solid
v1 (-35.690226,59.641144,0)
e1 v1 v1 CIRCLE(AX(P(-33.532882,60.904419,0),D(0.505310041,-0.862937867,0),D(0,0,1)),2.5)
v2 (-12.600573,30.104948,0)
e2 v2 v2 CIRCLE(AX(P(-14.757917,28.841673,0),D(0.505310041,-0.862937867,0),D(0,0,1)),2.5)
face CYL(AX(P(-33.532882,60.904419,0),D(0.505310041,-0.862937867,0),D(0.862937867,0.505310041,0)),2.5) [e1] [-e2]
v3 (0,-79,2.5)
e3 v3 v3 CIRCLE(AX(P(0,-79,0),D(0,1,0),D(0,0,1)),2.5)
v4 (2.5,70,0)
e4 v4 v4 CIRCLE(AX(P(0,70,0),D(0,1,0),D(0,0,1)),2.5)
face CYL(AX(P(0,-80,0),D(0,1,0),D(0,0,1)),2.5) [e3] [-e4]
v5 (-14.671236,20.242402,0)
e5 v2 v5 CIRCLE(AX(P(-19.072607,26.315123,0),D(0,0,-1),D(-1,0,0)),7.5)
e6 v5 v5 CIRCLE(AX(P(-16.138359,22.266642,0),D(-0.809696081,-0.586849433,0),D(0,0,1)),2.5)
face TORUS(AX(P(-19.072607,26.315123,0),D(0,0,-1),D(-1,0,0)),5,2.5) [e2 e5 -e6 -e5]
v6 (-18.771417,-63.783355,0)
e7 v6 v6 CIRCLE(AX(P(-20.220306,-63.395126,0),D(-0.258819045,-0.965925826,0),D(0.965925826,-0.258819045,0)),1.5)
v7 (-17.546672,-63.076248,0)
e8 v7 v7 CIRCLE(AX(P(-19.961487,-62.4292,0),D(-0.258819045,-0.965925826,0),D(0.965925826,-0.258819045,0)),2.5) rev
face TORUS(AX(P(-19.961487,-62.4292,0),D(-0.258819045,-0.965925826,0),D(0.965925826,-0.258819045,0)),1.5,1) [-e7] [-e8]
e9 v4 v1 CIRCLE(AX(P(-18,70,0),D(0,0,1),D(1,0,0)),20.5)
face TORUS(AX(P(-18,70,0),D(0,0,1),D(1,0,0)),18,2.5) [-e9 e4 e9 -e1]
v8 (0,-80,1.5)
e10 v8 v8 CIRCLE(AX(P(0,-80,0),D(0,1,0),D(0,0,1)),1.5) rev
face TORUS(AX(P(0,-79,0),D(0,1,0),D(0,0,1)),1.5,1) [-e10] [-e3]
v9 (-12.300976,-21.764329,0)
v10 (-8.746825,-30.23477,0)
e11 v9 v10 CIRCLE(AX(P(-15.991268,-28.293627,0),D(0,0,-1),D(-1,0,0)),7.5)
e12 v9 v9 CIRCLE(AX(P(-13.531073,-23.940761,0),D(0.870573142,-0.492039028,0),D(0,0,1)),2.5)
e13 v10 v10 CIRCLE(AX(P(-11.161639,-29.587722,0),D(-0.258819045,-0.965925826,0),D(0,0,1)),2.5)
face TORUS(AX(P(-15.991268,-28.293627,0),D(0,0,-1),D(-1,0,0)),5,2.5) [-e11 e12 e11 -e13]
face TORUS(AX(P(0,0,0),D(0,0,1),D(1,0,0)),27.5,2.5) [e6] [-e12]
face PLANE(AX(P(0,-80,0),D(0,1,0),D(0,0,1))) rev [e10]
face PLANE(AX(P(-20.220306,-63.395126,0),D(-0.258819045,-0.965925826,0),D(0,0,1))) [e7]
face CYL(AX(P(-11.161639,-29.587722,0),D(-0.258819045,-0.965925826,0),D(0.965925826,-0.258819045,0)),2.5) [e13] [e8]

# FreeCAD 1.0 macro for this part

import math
import FreeCAD as App
import Part
import Sketcher
Q = App.Units.Quantity


def edges_at(feature, points):
    """Names of the edges that pass closest to the given points."""
    edges = feature.Shape.Edges
    near = lambda p: min(range(len(edges)), key=lambda i: edges[i].distToShape(Part.Vertex(*p))[0])
    return sorted({f"Edge{near(p) + 1}" for p in points})

doc = App.newDocument("Part")
body = doc.addObject("PartDesign::Body", "Body")

# Sketch on XZ plane
sketch1 = body.newObject("Sketcher::SketchObject", "Sketch")
sketch1.AttachmentSupport = (doc.getObject("XZ_Plane"), [""])
sketch1.MapMode = "FlatFace"
sketch1.AttachmentOffset = App.Placement(App.Vector(0, 0, 80), App.Rotation())
sketch1.addGeometry(Part.Circle(App.Vector(0, 0, 0), App.Vector(0, 0, 1), 2.5), False)
sketch1.addConstraint(Sketcher.Constraint("Coincident", 0, 3, -1, 1))
sketch1.addConstraint(Sketcher.Constraint("Diameter", 0, 5.0))

# Sketch on XY plane
sketch2 = body.newObject("Sketcher::SketchObject", "Sketch001")
sketch2.AttachmentSupport = (doc.getObject("XY_Plane"), [""])
sketch2.MapMode = "FlatFace"
sketch2.addGeometry(Part.LineSegment(App.Vector(0, -80, 0), App.Vector(0, 70, 0)), False)
sketch2.addGeometry(Part.ArcOfCircle(Part.Circle(App.Vector(-18, 70, 0), App.Vector(0, 0, 1), 18), math.radians(0), math.radians(210.351936)), False)
sketch2.addGeometry(Part.LineSegment(App.Vector(-33.532882, 60.904419, 0), App.Vector(-14.757917, 28.841673, 0)), False)
sketch2.addGeometry(Part.ArcOfCircle(Part.Circle(App.Vector(-19.072607, 26.315123, 0), App.Vector(0, 0, 1), 5), math.radians(-54.066248), math.radians(30.351936)), False)
sketch2.addGeometry(Part.ArcOfCircle(Part.Circle(App.Vector(0, 0, 0), App.Vector(0, 0, 1), 27.5), math.radians(125.933752), math.radians(240.525311)), False)
sketch2.addGeometry(Part.ArcOfCircle(Part.Circle(App.Vector(-15.991268, -28.293627, 0), App.Vector(0, 0, 1), 5), math.radians(-15), math.radians(60.525311)), False)
sketch2.addGeometry(Part.LineSegment(App.Vector(-11.161639, -29.587722, 0), App.Vector(-20.220306, -63.395126, 0)), False)
sketch2.addConstraint(Sketcher.Constraint("Tangent", 0, 2, 1, 1))
sketch2.addConstraint(Sketcher.Constraint("Tangent", 1, 2, 2, 1))
sketch2.addConstraint(Sketcher.Constraint("Tangent", 2, 2, 3, 2))
sketch2.addConstraint(Sketcher.Constraint("Tangent", 3, 1, 4, 1))
sketch2.addConstraint(Sketcher.Constraint("Tangent", 4, 2, 5, 2))
sketch2.addConstraint(Sketcher.Constraint("Tangent", 5, 1, 6, 1))
sketch2.addConstraint(Sketcher.Constraint("Vertical", 0))
sketch2.addConstraint(Sketcher.Constraint("Coincident", 4, 3, -1, 1))
sketch2.addConstraint(Sketcher.Constraint("Equal", 3, 5))
sketch2.addConstraint(Sketcher.Constraint("PointOnObject", 0, 1, -2))
sketch2.addConstraint(Sketcher.Constraint("Radius", 1, 18.0))
sketch2.addConstraint(Sketcher.Constraint("Radius", 3, 5.0))
sketch2.addConstraint(Sketcher.Constraint("Radius", 4, 27.5))
sketch2.addConstraint(Sketcher.Constraint("DistanceY", 0, 1, 0, 2, 150.0))
sketch2.addConstraint(Sketcher.Constraint("Angle", 6, Q("-105 deg")))
sketch2.addConstraint(Sketcher.Constraint("Distance", 6, 35.0))
sketch2.addConstraint(Sketcher.Constraint("DistanceY", -1, 1, 1, 3, 70.0))
sketch2.addConstraint(Sketcher.Constraint("DistanceX", 5, 3, -1, 1, 15.991268))
sketch2.addConstraint(Sketcher.Constraint("DistanceX", 1, 2, -1, 1, 33.532882))
doc.recompute()

additivepipe = body.newObject("PartDesign::AdditivePipe", "AdditivePipe")
additivepipe.Profile = sketch1
additivepipe.Spine = (sketch2, ["Edge1", "Edge2", "Edge3", "Edge4", "Edge5", "Edge6", "Edge7"])
doc.recompute()

fillet = body.newObject("PartDesign::Fillet", "Fillet")
fillet.Base = (additivepipe, edges_at(additivepipe, [(-17.805, -64.042, 0), (-2.5, -80, 0)]))
fillet.Radius = 1

doc.recompute()
